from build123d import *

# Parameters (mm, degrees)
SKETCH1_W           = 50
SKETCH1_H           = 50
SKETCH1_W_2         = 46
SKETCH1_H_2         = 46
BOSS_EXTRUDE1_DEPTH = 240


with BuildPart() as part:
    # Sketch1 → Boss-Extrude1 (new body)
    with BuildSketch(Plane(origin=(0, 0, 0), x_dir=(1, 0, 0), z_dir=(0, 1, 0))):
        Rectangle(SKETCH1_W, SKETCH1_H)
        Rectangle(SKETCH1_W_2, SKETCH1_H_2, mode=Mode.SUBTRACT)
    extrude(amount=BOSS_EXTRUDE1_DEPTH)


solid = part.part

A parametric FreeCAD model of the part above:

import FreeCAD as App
import Part
import Sketcher


def add_polygon(sketch, points):
    """Adds a closed chain of lines whose ends are joined by coincident constraints."""
    first, n = sketch.GeometryCount, len(points)
    for a, b in zip(points, points[1:] + points[:1]):
        sketch.addGeometry(Part.LineSegment(App.Vector(*a, 0), App.Vector(*b, 0)), False)
    for i in range(n):
        sketch.addConstraint(Sketcher.Constraint("Coincident", first + i, 2, first + (i + 1) % n, 1))

doc = App.newDocument("Part")
body = doc.addObject("PartDesign::Body", "Body")

# Sketch on XZ plane
sketch1 = body.newObject("Sketcher::SketchObject", "Sketch")
sketch1.AttachmentSupport = (doc.getObject("XZ_Plane"), [""])
sketch1.MapMode = "FlatFace"
add_polygon(sketch1, [(-25, -25), (-25, 25), (25, 25), (25, -25)])  # lines 0-3
add_polygon(sketch1, [(23, 23), (-23, 23), (-23, -23), (23, -23)])  # lines 4-7
sketch1.addConstraint([
    Sketcher.Constraint("Vertical", 0),
    Sketcher.Constraint("Horizontal", 1),
    Sketcher.Constraint("Vertical", 2),
    Sketcher.Constraint("Horizontal", 3),
    Sketcher.Constraint("Horizontal", 4),
    Sketcher.Constraint("Vertical", 5),
    Sketcher.Constraint("Horizontal", 6),
    Sketcher.Constraint("Vertical", 7),
    Sketcher.Constraint("Symmetric", 0, 2, 2, 2, -1, 1),
    Sketcher.Constraint("Symmetric", 4, 2, 6, 2, -1, 1),
    Sketcher.Constraint("Equal", 3, 0),
    Sketcher.Constraint("Equal", 6, 5),
    Sketcher.Constraint("DistanceX", 1, 1, 1, 2, 50.0),
    Sketcher.Constraint("DistanceX", 4, 2, 4, 1, 46.0),
])
pad1 = body.newObject("PartDesign::Pad", "Pad")
pad1.Profile = sketch1
pad1.Length = 240
pad1.Reversed = True

doc.recompute()
